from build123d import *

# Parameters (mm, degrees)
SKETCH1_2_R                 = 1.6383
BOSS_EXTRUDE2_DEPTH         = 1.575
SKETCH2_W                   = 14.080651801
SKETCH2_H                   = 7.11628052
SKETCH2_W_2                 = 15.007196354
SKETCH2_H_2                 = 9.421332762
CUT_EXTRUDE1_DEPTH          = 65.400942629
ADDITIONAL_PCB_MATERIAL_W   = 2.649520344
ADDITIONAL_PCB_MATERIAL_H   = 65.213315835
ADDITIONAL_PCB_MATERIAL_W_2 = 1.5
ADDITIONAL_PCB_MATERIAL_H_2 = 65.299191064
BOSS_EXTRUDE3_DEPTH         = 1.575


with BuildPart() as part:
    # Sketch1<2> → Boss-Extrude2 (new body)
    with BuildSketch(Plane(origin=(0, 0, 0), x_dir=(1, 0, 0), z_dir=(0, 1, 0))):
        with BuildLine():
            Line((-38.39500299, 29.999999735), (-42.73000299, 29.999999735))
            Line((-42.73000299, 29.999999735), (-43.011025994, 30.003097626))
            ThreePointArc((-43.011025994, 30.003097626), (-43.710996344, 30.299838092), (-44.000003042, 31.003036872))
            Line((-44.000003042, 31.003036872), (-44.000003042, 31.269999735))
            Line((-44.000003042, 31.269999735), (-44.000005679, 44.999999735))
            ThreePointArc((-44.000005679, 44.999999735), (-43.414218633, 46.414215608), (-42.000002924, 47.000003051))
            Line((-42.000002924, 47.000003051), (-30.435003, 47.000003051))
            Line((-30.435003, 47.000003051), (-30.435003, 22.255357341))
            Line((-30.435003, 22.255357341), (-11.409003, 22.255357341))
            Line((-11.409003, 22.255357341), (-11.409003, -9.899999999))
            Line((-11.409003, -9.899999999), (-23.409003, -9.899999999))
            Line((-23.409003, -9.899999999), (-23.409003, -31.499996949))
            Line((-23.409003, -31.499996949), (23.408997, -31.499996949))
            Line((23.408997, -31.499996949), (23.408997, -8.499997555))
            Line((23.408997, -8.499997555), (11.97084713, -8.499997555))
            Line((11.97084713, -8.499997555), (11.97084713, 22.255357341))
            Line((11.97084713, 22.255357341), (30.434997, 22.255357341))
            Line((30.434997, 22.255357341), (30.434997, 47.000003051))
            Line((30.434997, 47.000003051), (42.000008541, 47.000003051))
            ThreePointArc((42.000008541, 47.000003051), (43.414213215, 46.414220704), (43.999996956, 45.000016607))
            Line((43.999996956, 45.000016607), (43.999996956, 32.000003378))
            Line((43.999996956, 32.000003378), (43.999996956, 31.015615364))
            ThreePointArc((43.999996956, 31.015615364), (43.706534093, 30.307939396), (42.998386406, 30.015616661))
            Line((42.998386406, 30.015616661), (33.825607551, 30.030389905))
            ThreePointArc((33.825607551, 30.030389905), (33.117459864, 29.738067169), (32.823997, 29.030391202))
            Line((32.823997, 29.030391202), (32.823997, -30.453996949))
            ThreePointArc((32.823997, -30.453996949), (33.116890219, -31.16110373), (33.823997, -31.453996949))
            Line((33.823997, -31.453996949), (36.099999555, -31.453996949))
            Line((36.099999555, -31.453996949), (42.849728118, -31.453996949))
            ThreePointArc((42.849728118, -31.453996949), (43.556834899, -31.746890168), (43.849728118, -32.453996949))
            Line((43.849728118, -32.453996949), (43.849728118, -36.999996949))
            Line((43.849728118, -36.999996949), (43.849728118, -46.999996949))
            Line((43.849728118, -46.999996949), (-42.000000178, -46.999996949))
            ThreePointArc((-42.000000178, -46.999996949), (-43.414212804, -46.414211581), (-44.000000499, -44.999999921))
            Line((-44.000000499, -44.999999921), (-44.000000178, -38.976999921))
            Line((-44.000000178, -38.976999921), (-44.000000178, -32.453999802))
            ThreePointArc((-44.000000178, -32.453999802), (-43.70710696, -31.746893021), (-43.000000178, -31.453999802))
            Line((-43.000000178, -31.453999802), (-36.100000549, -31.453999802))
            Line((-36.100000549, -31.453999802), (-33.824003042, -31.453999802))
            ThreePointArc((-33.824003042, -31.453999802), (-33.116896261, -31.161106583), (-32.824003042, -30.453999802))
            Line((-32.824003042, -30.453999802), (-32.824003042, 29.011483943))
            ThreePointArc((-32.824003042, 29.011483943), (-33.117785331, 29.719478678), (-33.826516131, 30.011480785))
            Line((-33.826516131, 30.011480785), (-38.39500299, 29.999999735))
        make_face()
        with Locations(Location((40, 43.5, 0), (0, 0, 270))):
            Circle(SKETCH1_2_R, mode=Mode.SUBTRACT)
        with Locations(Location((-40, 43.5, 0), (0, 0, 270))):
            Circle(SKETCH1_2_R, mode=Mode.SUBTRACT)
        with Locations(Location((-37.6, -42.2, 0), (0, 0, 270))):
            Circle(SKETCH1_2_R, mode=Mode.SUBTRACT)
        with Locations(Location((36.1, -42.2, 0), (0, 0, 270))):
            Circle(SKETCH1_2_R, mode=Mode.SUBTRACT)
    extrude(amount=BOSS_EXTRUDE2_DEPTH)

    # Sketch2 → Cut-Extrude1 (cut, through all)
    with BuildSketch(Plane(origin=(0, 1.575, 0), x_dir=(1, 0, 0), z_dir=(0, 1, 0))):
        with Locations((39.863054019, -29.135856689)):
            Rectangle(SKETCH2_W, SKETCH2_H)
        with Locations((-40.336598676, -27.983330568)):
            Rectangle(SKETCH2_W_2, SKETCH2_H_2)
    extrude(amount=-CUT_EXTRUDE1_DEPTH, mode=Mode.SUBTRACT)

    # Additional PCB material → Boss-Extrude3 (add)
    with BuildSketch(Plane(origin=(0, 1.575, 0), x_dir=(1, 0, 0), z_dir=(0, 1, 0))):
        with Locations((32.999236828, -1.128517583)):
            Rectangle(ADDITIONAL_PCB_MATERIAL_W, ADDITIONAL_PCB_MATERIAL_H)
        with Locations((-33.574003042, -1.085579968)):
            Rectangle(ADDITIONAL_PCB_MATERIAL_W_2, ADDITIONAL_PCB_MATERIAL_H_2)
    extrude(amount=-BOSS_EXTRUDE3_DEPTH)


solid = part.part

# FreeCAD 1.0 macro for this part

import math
import FreeCAD as App
import Part
import Sketcher
from FreeCAD import Vector

doc = App.newDocument("Part")
body = doc.addObject("PartDesign::Body", "Body")

# Sketch on XZ plane
sketch1 = doc.addObject("Sketcher::SketchObject", "Sketch")
body.addObject(sketch1)
sketch1.AttachmentSupport = (doc.XZ_Plane, [""])
sketch1.MapMode = "FlatFace"
sketch1.addGeometry(Part.LineSegment(Vector(-42.73, -30, 0), Vector(-38.4, -30, 0)), False)
sketch1.addGeometry(Part.LineSegment(Vector(-38.4, -30, 0), Vector(-33.83, -30.01, 0)), False)
sketch1.addGeometry(Part.ArcOfCircle(Part.Circle(Vector(-33.82, -29.01, 0), Vector(0, 0, 1), 1), math.radians(-90), math.radians(0)), False)
sketch1.addGeometry(Part.LineSegment(Vector(-32.82, -29.01, 0), Vector(-32.82, 30.45, 0)), False)
sketch1.addGeometry(Part.ArcOfCircle(Part.Circle(Vector(-33.82, 30.45, 0), Vector(0, 0, 1), 1), math.radians(0), math.radians(90)), False)
sketch1.addGeometry(Part.LineSegment(Vector(-33.82, 31.45, 0), Vector(-43, 31.45, 0)), False)
sketch1.addGeometry(Part.ArcOfCircle(Part.Circle(Vector(-43, 32.45, 0), Vector(0, 0, 1), 1), math.radians(180), math.radians(270)), False)
sketch1.addGeometry(Part.LineSegment(Vector(-44, 32.45, 0), Vector(-44, 38.98, 0)), False)
sketch1.addGeometry(Part.LineSegment(Vector(-44, 38.98, 0), Vector(-44, 45, 0)), False)
sketch1.addGeometry(Part.ArcOfCircle(Part.Circle(Vector(-42, 45, 0), Vector(0, 0, 1), 2), math.radians(90), math.radians(180)), False)
sketch1.addGeometry(Part.LineSegment(Vector(-42, 47, 0), Vector(43.85, 47, 0)), False)
sketch1.addGeometry(Part.LineSegment(Vector(43.85, 47, 0), Vector(43.85, 32.45, 0)), False)
sketch1.addGeometry(Part.ArcOfCircle(Part.Circle(Vector(42.85, 32.45, 0), Vector(0, 0, 1), 1), math.radians(-90), math.radians(0)), False)
sketch1.addGeometry(Part.LineSegment(Vector(42.85, 31.45, 0), Vector(33.82, 31.45, 0)), False)
sketch1.addGeometry(Part.ArcOfCircle(Part.Circle(Vector(33.82, 30.45, 0), Vector(0, 0, 1), 1), math.radians(90), math.radians(180)), False)
sketch1.addGeometry(Part.LineSegment(Vector(32.82, 30.45, 0), Vector(32.82, -29.03, 0)), False)
sketch1.addGeometry(Part.ArcOfCircle(Part.Circle(Vector(33.82, -29.03, 0), Vector(0, 0, 1), 1), math.radians(-180), math.radians(-90)), False)
sketch1.addGeometry(Part.LineSegment(Vector(33.83, -30.03, 0), Vector(43, -30.02, 0)), False)
sketch1.addGeometry(Part.ArcOfCircle(Part.Circle(Vector(43, -31.02, 0), Vector(0, 0, 1), 1), math.radians(0), math.radians(90)), False)
sketch1.addGeometry(Part.LineSegment(Vector(44, -31.02, 0), Vector(44, -45, 0)), False)
sketch1.addGeometry(Part.ArcOfCircle(Part.Circle(Vector(42, -45, 0), Vector(0, 0, 1), 2), math.radians(-90), math.radians(0)), False)
sketch1.addGeometry(Part.LineSegment(Vector(42, -47, 0), Vector(30.43, -47, 0)), False)
sketch1.addGeometry(Part.LineSegment(Vector(30.43, -47, 0), Vector(30.43, -22.26, 0)), False)
sketch1.addGeometry(Part.LineSegment(Vector(30.43, -22.26, 0), Vector(11.97, -22.26, 0)), False)
sketch1.addGeometry(Part.LineSegment(Vector(11.97, -22.26, 0), Vector(11.97, 8.5, 0)), False)
sketch1.addGeometry(Part.LineSegment(Vector(11.97, 8.5, 0), Vector(23.41, 8.5, 0)), False)
sketch1.addGeometry(Part.LineSegment(Vector(23.41, 8.5, 0), Vector(23.41, 31.5, 0)), False)
sketch1.addGeometry(Part.LineSegment(Vector(23.41, 31.5, 0), Vector(-23.41, 31.5, 0)), False)
sketch1.addGeometry(Part.LineSegment(Vector(-23.41, 31.5, 0), Vector(-23.41, 9.9, 0)), False)
sketch1.addGeometry(Part.LineSegment(Vector(-23.41, 9.9, 0), Vector(-11.41, 9.9, 0)), False)
sketch1.addGeometry(Part.LineSegment(Vector(-11.41, 9.9, 0), Vector(-11.41, -22.26, 0)), False)
sketch1.addGeometry(Part.LineSegment(Vector(-11.41, -22.26, 0), Vector(-30.44, -22.26, 0)), False)
sketch1.addGeometry(Part.LineSegment(Vector(-30.44, -22.26, 0), Vector(-30.44, -47, 0)), False)
sketch1.addGeometry(Part.LineSegment(Vector(-30.44, -47, 0), Vector(-42, -47, 0)), False)
sketch1.addGeometry(Part.ArcOfCircle(Part.Circle(Vector(-42, -45, 0), Vector(0, 0, 1), 2), math.radians(180), math.radians(270)), False)
sketch1.addGeometry(Part.LineSegment(Vector(-44, -45, 0), Vector(-44, -31.27, 0)), False)
sketch1.addGeometry(Part.LineSegment(Vector(-44, -31.27, 0), Vector(-44, -31, 0)), False)
sketch1.addGeometry(Part.ArcOfCircle(Part.Circle(Vector(-43, -31, 0), Vector(0, 0, 1), 1), math.radians(91), math.radians(180)), False)
sketch1.addGeometry(Part.LineSegment(Vector(-43.01, -30, 0), Vector(-42.73, -30, 0)), False)
sketch1.addGeometry(Part.Circle(Vector(36.1, 42.2, 0), Vector(0, 0, 1), 1.64), False)
sketch1.addGeometry(Part.Circle(Vector(-37.6, 42.2, 0), Vector(0, 0, 1), 1.64), False)
sketch1.addGeometry(Part.Circle(Vector(40, -43.5, 0), Vector(0, 0, 1), 1.64), False)
sketch1.addGeometry(Part.Circle(Vector(-40, -43.5, 0), Vector(0, 0, 1), 1.64), False)
sketch1.addConstraint(Sketcher.Constraint("Coincident", 0, 2, 1, 1))
sketch1.addConstraint(Sketcher.Constraint("Tangent", 1, 2, 2, 1))
sketch1.addConstraint(Sketcher.Constraint("Tangent", 2, 2, 3, 1))
sketch1.addConstraint(Sketcher.Constraint("Tangent", 3, 2, 4, 1))
sketch1.addConstraint(Sketcher.Constraint("Tangent", 4, 2, 5, 1))
sketch1.addConstraint(Sketcher.Constraint("Tangent", 5, 2, 6, 2))
sketch1.addConstraint(Sketcher.Constraint("Tangent", 6, 1, 7, 1))
sketch1.addConstraint(Sketcher.Constraint("Coincident", 7, 2, 8, 1))
sketch1.addConstraint(Sketcher.Constraint("Tangent", 8, 2, 9, 2))
sketch1.addConstraint(Sketcher.Constraint("Tangent", 9, 1, 10, 1))
sketch1.addConstraint(Sketcher.Constraint("Coincident", 10, 2, 11, 1))
sketch1.addConstraint(Sketcher.Constraint("Tangent", 11, 2, 12, 2))
sketch1.addConstraint(Sketcher.Constraint("Tangent", 12, 1, 13, 1))
sketch1.addConstraint(Sketcher.Constraint("Tangent", 13, 2, 14, 1))
sketch1.addConstraint(Sketcher.Constraint("Tangent", 14, 2, 15, 1))
sketch1.addConstraint(Sketcher.Constraint("Tangent", 15, 2, 16, 1))
sketch1.addConstraint(Sketcher.Constraint("Tangent", 16, 2, 17, 1))
sketch1.addConstraint(Sketcher.Constraint("Tangent", 17, 2, 18, 2))
sketch1.addConstraint(Sketcher.Constraint("Tangent", 18, 1, 19, 1))
sketch1.addConstraint(Sketcher.Constraint("Tangent", 19, 2, 20, 2))
sketch1.addConstraint(Sketcher.Constraint("Tangent", 20, 1, 21, 1))
sketch1.addConstraint(Sketcher.Constraint("Coincident", 21, 2, 22, 1))
sketch1.addConstraint(Sketcher.Constraint("Coincident", 22, 2, 23, 1))
sketch1.addConstraint(Sketcher.Constraint("Coincident", 23, 2, 24, 1))
sketch1.addConstraint(Sketcher.Constraint("Coincident", 24, 2, 25, 1))
sketch1.addConstraint(Sketcher.Constraint("Coincident", 25, 2, 26, 1))
sketch1.addConstraint(Sketcher.Constraint("Coincident", 26, 2, 27, 1))
sketch1.addConstraint(Sketcher.Constraint("Coincident", 27, 2, 28, 1))
sketch1.addConstraint(Sketcher.Constraint("Coincident", 28, 2, 29, 1))
sketch1.addConstraint(Sketcher.Constraint("Coincident", 29, 2, 30, 1))
sketch1.addConstraint(Sketcher.Constraint("Coincident", 30, 2, 31, 1))
sketch1.addConstraint(Sketcher.Constraint("Coincident", 31, 2, 32, 1))
sketch1.addConstraint(Sketcher.Constraint("Coincident", 32, 2, 33, 1))
sketch1.addConstraint(Sketcher.Constraint("Tangent", 33, 2, 34, 2))
sketch1.addConstraint(Sketcher.Constraint("Tangent", 34, 1, 35, 1))
sketch1.addConstraint(Sketcher.Constraint("Coincident", 35, 2, 36, 1))
sketch1.addConstraint(Sketcher.Constraint("Tangent", 36, 2, 37, 2))
sketch1.addConstraint(Sketcher.Constraint("Tangent", 37, 1, 38, 1))
sketch1.addConstraint(Sketcher.Constraint("Coincident", 38, 2, 0, 1))
sketch1.addConstraint(Sketcher.Constraint("Horizontal", 0))
sketch1.addConstraint(Sketcher.Constraint("Vertical", 3))
sketch1.addConstraint(Sketcher.Constraint("Horizontal", 5))
sketch1.addConstraint(Sketcher.Constraint("Vertical", 7))
sketch1.addConstraint(Sketcher.Constraint("Vertical", 8))
sketch1.addConstraint(Sketcher.Constraint("Horizontal", 10))
sketch1.addConstraint(Sketcher.Constraint("Vertical", 11))
sketch1.addConstraint(Sketcher.Constraint("Horizontal", 13))
sketch1.addConstraint(Sketcher.Constraint("Vertical", 15))
sketch1.addConstraint(Sketcher.Constraint("Vertical", 19))
sketch1.addConstraint(Sketcher.Constraint("Horizontal", 21))
sketch1.addConstraint(Sketcher.Constraint("Vertical", 22))
sketch1.addConstraint(Sketcher.Constraint("Horizontal", 23))
sketch1.addConstraint(Sketcher.Constraint("Vertical", 24))
sketch1.addConstraint(Sketcher.Constraint("Horizontal", 25))
sketch1.addConstraint(Sketcher.Constraint("Vertical", 26))
sketch1.addConstraint(Sketcher.Constraint("Horizontal", 27))
sketch1.addConstraint(Sketcher.Constraint("Vertical", 28))
sketch1.addConstraint(Sketcher.Constraint("Horizontal", 29))
sketch1.addConstraint(Sketcher.Constraint("Vertical", 30))
sketch1.addConstraint(Sketcher.Constraint("Horizontal", 31))
sketch1.addConstraint(Sketcher.Constraint("Vertical", 32))
sketch1.addConstraint(Sketcher.Constraint("Horizontal", 33))
sketch1.addConstraint(Sketcher.Constraint("Vertical", 36))
sketch1.addConstraint(Sketcher.Constraint("Equal", 2, 4))
sketch1.addConstraint(Sketcher.Constraint("Equal", 4, 6))
sketch1.addConstraint(Sketcher.Constraint("Equal", 6, 12))
sketch1.addConstraint(Sketcher.Constraint("Equal", 12, 14))
sketch1.addConstraint(Sketcher.Constraint("Equal", 14, 16))
sketch1.addConstraint(Sketcher.Constraint("Equal", 16, 18))
sketch1.addConstraint(Sketcher.Constraint("Equal", 18, 37))
sketch1.addConstraint(Sketcher.Constraint("Equal", 39, 40))
sketch1.addConstraint(Sketcher.Constraint("Equal", 40, 41))
sketch1.addConstraint(Sketcher.Constraint("Equal", 41, 42))
sketch1.addConstraint(Sketcher.Constraint("Symmetric", 4, 3, 14, 3, -2))
sketch1.addConstraint(Sketcher.Constraint("Symmetric", 41, 3, 42, 3, -2))
sketch1.addConstraint(Sketcher.Constraint("Symmetric", 22, 2, 31, 2, -2))
sketch1.addConstraint(Sketcher.Constraint("Symmetric", 20, 1, 33, 2, -2))
sketch1.addConstraint(Sketcher.Constraint("Symmetric", 9, 3, 34, 3, -1))
sketch1.addConstraint(Sketcher.Constraint("Symmetric", 8, 2, 34, 1, -1))
sketch1.addConstraint(Sketcher.Constraint("Horizontal", 39, 3, 40, 3))
sketch1.addConstraint(Sketcher.Constraint("Radius", 2, 1.0))
sketch1.addConstraint(Sketcher.Constraint("Radius", 9, 2.0))
sketch1.addConstraint(Sketcher.Constraint("DistanceX", 29, 1, 29, 2, 12.0))
sketch1.addConstraint(Sketcher.Constraint("DistanceY", 26, 1, 26, 2, 22.999999))
sketch1.addConstraint(Sketcher.Constraint("DistanceX", 6, 3, -1, 1, 43.0))
sketch1.addConstraint(Sketcher.Constraint("DistanceY", 34, 3, -1, 1, 45.0))
sketch1.addConstraint(Sketcher.Constraint("DistanceX", -1, 1, 41, 3, 40.0))
sketch1.addConstraint(Sketcher.Constraint("DistanceY", 0, 2, -1, 1, 30.0))
sketch1.addConstraint(Sketcher.Constraint("Diameter", 39, 3.2766))
sketch1.addConstraint(Sketcher.Constraint("DistanceX", -1, 1, 39, 3, 36.1))
sketch1.addConstraint(Sketcher.Constraint("DistanceY", -1, 1, 39, 3, 42.2))
sketch1.addConstraint(Sketcher.Constraint("DistanceX", 40, 3, -1, 1, 37.6))
sketch1.addConstraint(Sketcher.Constraint("DistanceY", 41, 3, -1, 1, 43.5))
sketch1.addConstraint(Sketcher.Constraint("DistanceY", -1, 1, 28, 2, 9.9))
sketch1.addConstraint(Sketcher.Constraint("Distance", 35, 13.73))
sketch1.addConstraint(Sketcher.Constraint("DistanceX", 0, 1, 0, 2, 4.335))
sketch1.addConstraint(Sketcher.Constraint("DistanceX", 27, 2, 27, 1, 46.818))
sketch1.addConstraint(Sketcher.Constraint("DistanceX", 31, 2, 31, 1, 19.026))
sketch1.addConstraint(Sketcher.Constraint("DistanceX", 33, 2, 33, 1, 11.565))
sketch1.addConstraint(Sketcher.Constraint("DistanceY", 7, 1, 7, 2, 6.523))
sketch1.addConstraint(Sketcher.Constraint("DistanceY", 8, 1, 8, 2, 6.023))
sketch1.addConstraint(Sketcher.Constraint("Radius", 20, 1.999988))
sketch1.addConstraint(Sketcher.Constraint("DistanceX", 0, 2, 31, 2, 7.96))
sketch1.addConstraint(Sketcher.Constraint("DistanceY", 19, 2, 19, 1, 13.984401))
sketch1.addConstraint(Sketcher.Constraint("DistanceX", 4, 3, 14, 3, 67.648))
sketch1.addConstraint(Sketcher.Constraint("DistanceY", 24, 2, 14, 2, 21.953999))
sketch1.addConstraint(Sketcher.Constraint("Distance", 1, 4.568501))
sketch1.addConstraint(Sketcher.Constraint("DistanceX", 10, 1, 10, 2, 85.849728))
sketch1.addConstraint(Sketcher.Constraint("DistanceX", 23, 2, 23, 1, 18.46415))
sketch1.addConstraint(Sketcher.Constraint("DistanceY", 15, 2, 15, 1, 59.484388))
sketch1.addConstraint(Sketcher.Constraint("Distance", 38, 0.28104))
sketch1.addConstraint(Sketcher.Constraint("DistanceY", 22, 1, 22, 2, 24.744646))
pad1 = doc.addObject("PartDesign::Pad", "Pad")
body.addObject(pad1)
pad1.Profile = sketch1
pad1.Length = 1.575
pad1.Reversed = True

# Sketch on XZ plane
sketch2 = doc.addObject("Sketcher::SketchObject", "Sketch001")
body.addObject(sketch2)
sketch2.AttachmentSupport = (doc.XZ_Plane, [""])
sketch2.MapMode = "FlatFace"
sketch2.AttachmentOffset = App.Placement(Vector(0, 0, -1.575), App.Rotation())
sketch2.addGeometry(Part.LineSegment(Vector(33, 26, 0), Vector(33, 33, 0)), False)
sketch2.addGeometry(Part.LineSegment(Vector(33, 33, 0), Vector(47, 33, 0)), False)
sketch2.addGeometry(Part.LineSegment(Vector(47, 33, 0), Vector(47, 26, 0)), False)
sketch2.addGeometry(Part.LineSegment(Vector(47, 26, 0), Vector(33, 26, 0)), False)
sketch2.addGeometry(Part.LineSegment(Vector(-48, 23, 0), Vector(-48, 33, 0)), False)
sketch2.addGeometry(Part.LineSegment(Vector(-48, 33, 0), Vector(-33, 33, 0)), False)
sketch2.addGeometry(Part.LineSegment(Vector(-33, 33, 0), Vector(-33, 23, 0)), False)
sketch2.addGeometry(Part.LineSegment(Vector(-33, 23, 0), Vector(-48, 23, 0)), False)
sketch2.addConstraint(Sketcher.Constraint("Coincident", 0, 2, 1, 1))
sketch2.addConstraint(Sketcher.Constraint("Coincident", 1, 2, 2, 1))
sketch2.addConstraint(Sketcher.Constraint("Coincident", 2, 2, 3, 1))
sketch2.addConstraint(Sketcher.Constraint("Coincident", 3, 2, 0, 1))
sketch2.addConstraint(Sketcher.Constraint("Coincident", 4, 2, 5, 1))
sketch2.addConstraint(Sketcher.Constraint("Coincident", 5, 2, 6, 1))
sketch2.addConstraint(Sketcher.Constraint("Coincident", 6, 2, 7, 1))
sketch2.addConstraint(Sketcher.Constraint("Coincident", 7, 2, 4, 1))
sketch2.addConstraint(Sketcher.Constraint("Vertical", 0))
sketch2.addConstraint(Sketcher.Constraint("Horizontal", 1))
sketch2.addConstraint(Sketcher.Constraint("Vertical", 2))
sketch2.addConstraint(Sketcher.Constraint("Horizontal", 3))
sketch2.addConstraint(Sketcher.Constraint("Vertical", 4))
sketch2.addConstraint(Sketcher.Constraint("Horizontal", 5))
sketch2.addConstraint(Sketcher.Constraint("Vertical", 6))
sketch2.addConstraint(Sketcher.Constraint("Horizontal", 7))
sketch2.addConstraint(Sketcher.Constraint("Horizontal", 1, 2, 4, 2))
sketch2.addConstraint(Sketcher.Constraint("DistanceX", 5, 2, -1, 1, 32.833))
sketch2.addConstraint(Sketcher.Constraint("DistanceX", 1, 1, 1, 2, 14.080652))
sketch2.addConstraint(Sketcher.Constraint("DistanceY", 0, 1, 0, 2, 7.116281))
sketch2.addConstraint(Sketcher.Constraint("DistanceX", 5, 1, 5, 2, 15.007196))
sketch2.addConstraint(Sketcher.Constraint("DistanceY", 4, 1, 4, 2, 9.421333))
sketch2.addConstraint(Sketcher.Constraint("DistanceX", -1, 1, 0, 2, 32.822728))
sketch2.addConstraint(Sketcher.Constraint("DistanceY", -1, 1, 0, 2, 32.693997))
pocket1 = doc.addObject("PartDesign::Pocket", "Pocket")
body.addObject(pocket1)
pocket1.Profile = sketch2
pocket1.Type = "ThroughAll"
pocket1.Reversed = True

# Sketch on XZ plane
sketch3 = doc.addObject("Sketcher::SketchObject", "Sketch002")
body.addObject(sketch3)
sketch3.AttachmentSupport = (doc.XZ_Plane, [""])
sketch3.MapMode = "FlatFace"
sketch3.AttachmentOffset = App.Placement(Vector(0, 0, -1.575), App.Rotation())
sketch3.addGeometry(Part.LineSegment(Vector(31.7, -31.5, 0), Vector(31.7, 33.7, 0)), False)
sketch3.addGeometry(Part.LineSegment(Vector(31.7, 33.7, 0), Vector(34.3, 33.7, 0)), False)
sketch3.addGeometry(Part.LineSegment(Vector(34.3, 33.7, 0), Vector(34.3, -31.5, 0)), False)
sketch3.addGeometry(Part.LineSegment(Vector(34.3, -31.5, 0), Vector(31.7, -31.5, 0)), False)
sketch3.addGeometry(Part.LineSegment(Vector(-34.3, -31.6, 0), Vector(-34.3, 33.7, 0)), False)
sketch3.addGeometry(Part.LineSegment(Vector(-34.3, 33.7, 0), Vector(-32.8, 33.7, 0)), False)
sketch3.addGeometry(Part.LineSegment(Vector(-32.8, 33.7, 0), Vector(-32.8, -31.6, 0)), False)
sketch3.addGeometry(Part.LineSegment(Vector(-32.8, -31.6, 0), Vector(-34.3, -31.6, 0)), False)
sketch3.addConstraint(Sketcher.Constraint("Coincident", 0, 2, 1, 1))
sketch3.addConstraint(Sketcher.Constraint("Coincident", 1, 2, 2, 1))
sketch3.addConstraint(Sketcher.Constraint("Coincident", 2, 2, 3, 1))
sketch3.addConstraint(Sketcher.Constraint("Coincident", 3, 2, 0, 1))
sketch3.addConstraint(Sketcher.Constraint("Coincident", 4, 2, 5, 1))
sketch3.addConstraint(Sketcher.Constraint("Coincident", 5, 2, 6, 1))
sketch3.addConstraint(Sketcher.Constraint("Coincident", 6, 2, 7, 1))
sketch3.addConstraint(Sketcher.Constraint("Coincident", 7, 2, 4, 1))
sketch3.addConstraint(Sketcher.Constraint("Vertical", 0))
sketch3.addConstraint(Sketcher.Constraint("Horizontal", 1))
sketch3.addConstraint(Sketcher.Constraint("Vertical", 2))
sketch3.addConstraint(Sketcher.Constraint("Horizontal", 3))
sketch3.addConstraint(Sketcher.Constraint("Vertical", 4))
sketch3.addConstraint(Sketcher.Constraint("Horizontal", 5))
sketch3.addConstraint(Sketcher.Constraint("Vertical", 6))
sketch3.addConstraint(Sketcher.Constraint("Horizontal", 7))
sketch3.addConstraint(Sketcher.Constraint("Symmetric", 1, 2, 4, 2, -2))
sketch3.addConstraint(Sketcher.Constraint("DistanceX", 5, 1, 5, 2, 1.5))
sketch3.addConstraint(Sketcher.Constraint("DistanceX", 4, 2, 1, 2, 68.648))
sketch3.addConstraint(Sketcher.Constraint("DistanceX", 1, 1, 1, 2, 2.64952))
sketch3.addConstraint(Sketcher.Constraint("DistanceY", 4, 1, 4, 2, 65.299191))
sketch3.addConstraint(Sketcher.Constraint("DistanceY", 0, 1, 0, 2, 65.213316))
sketch3.addConstraint(Sketcher.Constraint("DistanceY", 2, 2, -1, 1, 31.47814))
pad2 = doc.addObject("PartDesign::Pad", "Pad001")
body.addObject(pad2)
pad2.Profile = sketch3
pad2.Length = 1.575

doc.recompute()
